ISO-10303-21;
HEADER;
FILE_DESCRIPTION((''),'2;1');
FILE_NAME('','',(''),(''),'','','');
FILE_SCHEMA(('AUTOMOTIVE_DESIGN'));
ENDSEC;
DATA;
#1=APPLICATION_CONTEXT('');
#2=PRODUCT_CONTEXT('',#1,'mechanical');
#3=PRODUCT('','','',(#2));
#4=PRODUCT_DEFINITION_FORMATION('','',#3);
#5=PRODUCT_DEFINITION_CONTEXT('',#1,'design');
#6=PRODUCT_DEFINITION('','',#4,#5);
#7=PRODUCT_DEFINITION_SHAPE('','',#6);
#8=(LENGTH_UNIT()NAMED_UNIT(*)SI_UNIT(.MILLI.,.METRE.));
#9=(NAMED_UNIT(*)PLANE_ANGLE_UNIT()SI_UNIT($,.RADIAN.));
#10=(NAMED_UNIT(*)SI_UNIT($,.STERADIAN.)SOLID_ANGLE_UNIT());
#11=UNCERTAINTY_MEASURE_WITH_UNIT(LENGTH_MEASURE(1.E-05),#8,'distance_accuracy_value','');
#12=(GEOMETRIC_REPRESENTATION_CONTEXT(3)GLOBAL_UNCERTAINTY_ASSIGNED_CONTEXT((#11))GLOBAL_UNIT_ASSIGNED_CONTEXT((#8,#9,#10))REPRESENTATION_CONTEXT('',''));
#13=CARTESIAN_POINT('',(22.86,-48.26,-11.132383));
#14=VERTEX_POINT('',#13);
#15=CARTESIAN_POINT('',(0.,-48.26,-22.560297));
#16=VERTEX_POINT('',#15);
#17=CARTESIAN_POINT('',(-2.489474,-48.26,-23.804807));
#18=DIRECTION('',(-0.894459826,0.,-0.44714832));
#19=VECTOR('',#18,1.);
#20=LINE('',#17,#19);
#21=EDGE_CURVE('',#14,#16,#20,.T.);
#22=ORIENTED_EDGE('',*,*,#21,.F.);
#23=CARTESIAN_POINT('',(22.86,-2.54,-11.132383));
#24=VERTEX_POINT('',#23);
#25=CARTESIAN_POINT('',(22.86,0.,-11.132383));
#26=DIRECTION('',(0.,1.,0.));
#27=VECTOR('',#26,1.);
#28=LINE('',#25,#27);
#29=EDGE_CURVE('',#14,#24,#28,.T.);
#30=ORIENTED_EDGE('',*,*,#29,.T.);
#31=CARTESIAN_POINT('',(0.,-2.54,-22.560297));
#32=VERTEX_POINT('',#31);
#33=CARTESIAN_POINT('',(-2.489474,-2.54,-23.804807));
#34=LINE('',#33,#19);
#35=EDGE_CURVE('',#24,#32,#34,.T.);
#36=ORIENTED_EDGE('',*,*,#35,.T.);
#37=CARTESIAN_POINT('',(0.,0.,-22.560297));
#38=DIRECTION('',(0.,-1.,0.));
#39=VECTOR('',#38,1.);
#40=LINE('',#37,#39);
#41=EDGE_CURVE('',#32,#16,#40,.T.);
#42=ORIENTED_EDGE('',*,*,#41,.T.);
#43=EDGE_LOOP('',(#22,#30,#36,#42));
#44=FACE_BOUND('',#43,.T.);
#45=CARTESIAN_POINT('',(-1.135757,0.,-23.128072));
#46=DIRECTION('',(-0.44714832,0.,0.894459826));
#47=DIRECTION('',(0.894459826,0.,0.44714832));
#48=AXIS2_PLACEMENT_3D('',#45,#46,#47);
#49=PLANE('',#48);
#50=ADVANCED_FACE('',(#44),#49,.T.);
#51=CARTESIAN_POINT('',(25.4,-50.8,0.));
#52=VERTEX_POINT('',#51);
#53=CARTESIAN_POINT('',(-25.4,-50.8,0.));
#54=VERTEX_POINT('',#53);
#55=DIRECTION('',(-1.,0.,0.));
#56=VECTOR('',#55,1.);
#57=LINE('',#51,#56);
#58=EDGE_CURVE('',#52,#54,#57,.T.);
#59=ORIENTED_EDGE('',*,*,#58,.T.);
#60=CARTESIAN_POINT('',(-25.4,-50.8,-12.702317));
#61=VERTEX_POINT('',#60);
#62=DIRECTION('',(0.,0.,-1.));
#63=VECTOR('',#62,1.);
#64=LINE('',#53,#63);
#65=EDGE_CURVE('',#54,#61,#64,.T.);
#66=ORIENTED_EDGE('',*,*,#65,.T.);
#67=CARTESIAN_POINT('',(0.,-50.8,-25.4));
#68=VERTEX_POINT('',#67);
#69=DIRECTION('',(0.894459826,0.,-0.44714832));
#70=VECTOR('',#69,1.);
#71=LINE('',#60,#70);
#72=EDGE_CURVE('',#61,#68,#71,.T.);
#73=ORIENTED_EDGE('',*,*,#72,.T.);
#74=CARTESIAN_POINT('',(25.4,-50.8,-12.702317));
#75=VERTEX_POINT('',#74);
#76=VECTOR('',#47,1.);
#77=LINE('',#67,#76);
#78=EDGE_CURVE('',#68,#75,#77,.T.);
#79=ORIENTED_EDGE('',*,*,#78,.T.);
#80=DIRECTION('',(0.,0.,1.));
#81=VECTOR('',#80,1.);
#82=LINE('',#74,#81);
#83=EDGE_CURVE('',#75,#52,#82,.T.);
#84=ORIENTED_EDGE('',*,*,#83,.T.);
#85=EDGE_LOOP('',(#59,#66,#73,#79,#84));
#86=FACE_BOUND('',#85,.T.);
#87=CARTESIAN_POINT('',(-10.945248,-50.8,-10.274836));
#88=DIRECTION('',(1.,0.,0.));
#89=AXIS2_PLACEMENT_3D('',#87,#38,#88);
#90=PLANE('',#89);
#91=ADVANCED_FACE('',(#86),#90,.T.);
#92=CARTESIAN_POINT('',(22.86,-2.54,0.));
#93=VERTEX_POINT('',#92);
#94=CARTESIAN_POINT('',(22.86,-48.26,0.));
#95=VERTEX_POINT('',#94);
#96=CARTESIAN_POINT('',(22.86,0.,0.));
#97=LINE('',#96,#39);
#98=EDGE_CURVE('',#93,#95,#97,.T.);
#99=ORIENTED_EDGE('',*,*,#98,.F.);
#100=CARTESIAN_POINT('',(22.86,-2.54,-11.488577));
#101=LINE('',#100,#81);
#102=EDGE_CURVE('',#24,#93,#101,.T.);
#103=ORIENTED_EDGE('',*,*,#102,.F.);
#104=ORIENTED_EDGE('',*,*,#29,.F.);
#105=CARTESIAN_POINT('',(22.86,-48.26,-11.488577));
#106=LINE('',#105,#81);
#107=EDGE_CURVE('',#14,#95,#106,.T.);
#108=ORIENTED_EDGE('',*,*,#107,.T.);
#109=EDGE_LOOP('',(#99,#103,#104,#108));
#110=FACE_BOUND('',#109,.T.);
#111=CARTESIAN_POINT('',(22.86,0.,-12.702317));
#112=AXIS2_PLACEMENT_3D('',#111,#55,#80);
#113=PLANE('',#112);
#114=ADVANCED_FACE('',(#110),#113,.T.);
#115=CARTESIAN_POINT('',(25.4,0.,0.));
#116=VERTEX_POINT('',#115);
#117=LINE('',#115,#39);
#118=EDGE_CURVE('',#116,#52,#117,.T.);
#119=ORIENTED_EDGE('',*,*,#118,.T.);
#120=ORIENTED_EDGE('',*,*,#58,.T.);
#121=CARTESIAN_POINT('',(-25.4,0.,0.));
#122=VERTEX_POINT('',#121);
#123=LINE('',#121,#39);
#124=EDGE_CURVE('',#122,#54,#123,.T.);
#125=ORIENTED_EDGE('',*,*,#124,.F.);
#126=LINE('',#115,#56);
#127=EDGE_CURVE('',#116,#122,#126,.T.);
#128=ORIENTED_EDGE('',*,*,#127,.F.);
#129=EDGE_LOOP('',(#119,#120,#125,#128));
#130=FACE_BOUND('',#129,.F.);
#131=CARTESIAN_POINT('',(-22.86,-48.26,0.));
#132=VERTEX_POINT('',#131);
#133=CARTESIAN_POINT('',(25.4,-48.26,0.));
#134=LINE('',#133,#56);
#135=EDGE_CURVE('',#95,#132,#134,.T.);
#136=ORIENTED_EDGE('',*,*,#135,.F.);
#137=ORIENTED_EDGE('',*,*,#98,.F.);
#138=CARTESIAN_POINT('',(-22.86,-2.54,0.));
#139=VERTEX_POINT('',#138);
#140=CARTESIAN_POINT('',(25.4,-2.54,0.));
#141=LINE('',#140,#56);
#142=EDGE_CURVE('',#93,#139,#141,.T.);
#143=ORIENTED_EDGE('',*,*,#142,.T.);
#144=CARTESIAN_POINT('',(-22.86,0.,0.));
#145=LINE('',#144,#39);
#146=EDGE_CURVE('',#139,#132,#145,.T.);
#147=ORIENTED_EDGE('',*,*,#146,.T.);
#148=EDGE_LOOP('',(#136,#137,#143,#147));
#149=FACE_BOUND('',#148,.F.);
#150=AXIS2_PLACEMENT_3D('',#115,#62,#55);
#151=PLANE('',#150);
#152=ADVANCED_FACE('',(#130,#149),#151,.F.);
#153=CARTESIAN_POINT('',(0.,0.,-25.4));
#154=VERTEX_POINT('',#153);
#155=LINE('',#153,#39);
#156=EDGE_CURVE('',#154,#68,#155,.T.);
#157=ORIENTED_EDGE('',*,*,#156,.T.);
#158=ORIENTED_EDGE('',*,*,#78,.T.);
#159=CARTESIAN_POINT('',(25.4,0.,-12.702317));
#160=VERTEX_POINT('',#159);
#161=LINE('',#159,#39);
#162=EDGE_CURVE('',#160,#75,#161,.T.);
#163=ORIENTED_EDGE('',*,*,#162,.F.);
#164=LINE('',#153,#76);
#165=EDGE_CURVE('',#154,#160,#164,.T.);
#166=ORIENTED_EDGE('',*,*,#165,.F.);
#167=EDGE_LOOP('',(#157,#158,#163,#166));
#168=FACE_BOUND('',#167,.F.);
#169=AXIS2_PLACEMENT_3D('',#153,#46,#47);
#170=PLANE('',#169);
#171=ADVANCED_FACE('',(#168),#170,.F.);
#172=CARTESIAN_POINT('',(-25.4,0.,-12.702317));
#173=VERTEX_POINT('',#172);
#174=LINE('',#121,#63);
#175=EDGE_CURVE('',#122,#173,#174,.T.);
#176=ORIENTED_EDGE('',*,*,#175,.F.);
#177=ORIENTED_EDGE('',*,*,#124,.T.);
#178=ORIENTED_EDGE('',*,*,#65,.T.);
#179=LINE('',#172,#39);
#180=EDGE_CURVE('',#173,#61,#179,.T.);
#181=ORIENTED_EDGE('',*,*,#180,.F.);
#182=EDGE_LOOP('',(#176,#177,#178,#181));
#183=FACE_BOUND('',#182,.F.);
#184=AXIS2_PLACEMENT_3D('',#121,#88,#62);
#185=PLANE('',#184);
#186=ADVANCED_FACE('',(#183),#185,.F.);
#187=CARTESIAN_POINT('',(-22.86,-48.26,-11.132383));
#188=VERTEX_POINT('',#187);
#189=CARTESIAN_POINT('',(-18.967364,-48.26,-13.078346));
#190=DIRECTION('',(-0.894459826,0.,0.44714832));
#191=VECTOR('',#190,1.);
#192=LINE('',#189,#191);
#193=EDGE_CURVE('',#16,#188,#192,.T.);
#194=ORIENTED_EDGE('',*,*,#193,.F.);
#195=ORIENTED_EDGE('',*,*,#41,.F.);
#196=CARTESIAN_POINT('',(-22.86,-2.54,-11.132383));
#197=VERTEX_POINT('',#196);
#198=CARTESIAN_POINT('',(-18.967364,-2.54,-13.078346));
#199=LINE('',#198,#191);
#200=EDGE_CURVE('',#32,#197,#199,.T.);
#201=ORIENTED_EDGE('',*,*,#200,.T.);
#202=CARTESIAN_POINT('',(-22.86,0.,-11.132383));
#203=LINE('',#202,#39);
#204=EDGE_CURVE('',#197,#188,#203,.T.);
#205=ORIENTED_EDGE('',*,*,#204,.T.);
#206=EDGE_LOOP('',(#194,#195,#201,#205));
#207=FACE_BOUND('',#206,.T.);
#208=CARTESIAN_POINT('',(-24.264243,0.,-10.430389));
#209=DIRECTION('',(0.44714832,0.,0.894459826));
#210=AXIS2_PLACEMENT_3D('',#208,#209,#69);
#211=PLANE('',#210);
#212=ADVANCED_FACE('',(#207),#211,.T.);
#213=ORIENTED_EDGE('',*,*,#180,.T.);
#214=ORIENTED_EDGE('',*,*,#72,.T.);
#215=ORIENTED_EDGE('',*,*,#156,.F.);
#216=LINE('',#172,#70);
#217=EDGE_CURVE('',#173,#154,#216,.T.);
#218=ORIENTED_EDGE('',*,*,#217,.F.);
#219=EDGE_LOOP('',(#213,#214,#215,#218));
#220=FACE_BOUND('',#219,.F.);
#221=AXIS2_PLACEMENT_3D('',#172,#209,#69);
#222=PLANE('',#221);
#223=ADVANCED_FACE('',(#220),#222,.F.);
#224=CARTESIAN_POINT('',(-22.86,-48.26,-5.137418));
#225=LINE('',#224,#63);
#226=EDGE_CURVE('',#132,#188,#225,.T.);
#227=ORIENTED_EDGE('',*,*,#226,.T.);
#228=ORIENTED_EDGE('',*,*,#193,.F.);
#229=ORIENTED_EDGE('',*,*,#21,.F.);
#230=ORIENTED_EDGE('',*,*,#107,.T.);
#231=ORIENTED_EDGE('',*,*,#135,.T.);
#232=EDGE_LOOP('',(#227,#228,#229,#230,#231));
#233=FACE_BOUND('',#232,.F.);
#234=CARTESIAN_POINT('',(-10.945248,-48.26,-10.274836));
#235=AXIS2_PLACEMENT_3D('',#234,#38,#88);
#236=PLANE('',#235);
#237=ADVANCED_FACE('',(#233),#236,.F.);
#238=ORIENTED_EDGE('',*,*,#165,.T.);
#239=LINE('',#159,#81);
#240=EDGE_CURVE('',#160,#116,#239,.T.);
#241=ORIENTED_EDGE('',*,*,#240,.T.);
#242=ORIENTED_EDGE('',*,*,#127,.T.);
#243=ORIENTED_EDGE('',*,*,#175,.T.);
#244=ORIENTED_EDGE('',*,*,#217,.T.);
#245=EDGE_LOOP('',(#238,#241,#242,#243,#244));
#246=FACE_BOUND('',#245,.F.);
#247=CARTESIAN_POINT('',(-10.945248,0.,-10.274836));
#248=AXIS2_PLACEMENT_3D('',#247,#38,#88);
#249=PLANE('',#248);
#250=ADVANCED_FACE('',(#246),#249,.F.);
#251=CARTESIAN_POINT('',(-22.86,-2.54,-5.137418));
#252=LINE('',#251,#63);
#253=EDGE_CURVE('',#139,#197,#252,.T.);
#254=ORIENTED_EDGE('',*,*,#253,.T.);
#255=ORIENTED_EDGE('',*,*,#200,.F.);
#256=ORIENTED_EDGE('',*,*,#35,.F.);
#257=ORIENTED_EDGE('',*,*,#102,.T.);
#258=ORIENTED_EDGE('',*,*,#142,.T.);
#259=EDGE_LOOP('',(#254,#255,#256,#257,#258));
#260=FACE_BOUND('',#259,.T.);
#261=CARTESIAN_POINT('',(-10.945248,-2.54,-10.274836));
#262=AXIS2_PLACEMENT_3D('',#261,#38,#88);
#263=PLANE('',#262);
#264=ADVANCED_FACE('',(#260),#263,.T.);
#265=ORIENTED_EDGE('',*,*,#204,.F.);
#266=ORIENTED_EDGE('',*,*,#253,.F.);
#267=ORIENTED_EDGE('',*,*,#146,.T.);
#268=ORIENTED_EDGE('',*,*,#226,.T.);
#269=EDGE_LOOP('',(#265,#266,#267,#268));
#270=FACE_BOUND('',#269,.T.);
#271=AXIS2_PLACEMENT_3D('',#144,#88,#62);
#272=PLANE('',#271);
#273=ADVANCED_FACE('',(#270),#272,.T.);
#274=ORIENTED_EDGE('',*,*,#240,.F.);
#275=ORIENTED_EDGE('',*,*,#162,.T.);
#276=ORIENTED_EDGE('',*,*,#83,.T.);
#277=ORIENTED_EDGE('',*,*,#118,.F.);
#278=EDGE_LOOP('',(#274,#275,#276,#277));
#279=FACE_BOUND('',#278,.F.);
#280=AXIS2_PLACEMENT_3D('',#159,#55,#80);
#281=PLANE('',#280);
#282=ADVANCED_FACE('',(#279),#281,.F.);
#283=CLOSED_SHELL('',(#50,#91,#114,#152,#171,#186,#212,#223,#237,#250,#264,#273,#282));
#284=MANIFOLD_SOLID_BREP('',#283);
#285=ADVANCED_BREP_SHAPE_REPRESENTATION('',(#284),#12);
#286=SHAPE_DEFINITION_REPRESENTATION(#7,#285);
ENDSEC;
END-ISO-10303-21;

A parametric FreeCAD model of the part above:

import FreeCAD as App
import Part
import Sketcher
from FreeCAD import Vector
Q = App.Units.Quantity


def faces_at(feature, points):
    """Names of the faces that lie closest to the given points."""
    faces = feature.Shape.Faces
    near = lambda p: min(range(len(faces)), key=lambda i: faces[i].distToShape(Part.Vertex(*p))[0])
    return sorted({f"Face{near(p) + 1}" for p in points})

doc = App.newDocument("Part")
params = doc.addObject("Spreadsheet::Sheet", "Params")
for row, (alias, value) in enumerate([
    ("sketch1_width", "2 in"),
    ("pad1_length", "2 in"),
    ("thickness_wall", "0.1 in"),
], start=1):
    params.set(f"A{row}", alias)
    params.set(f"B{row}", "=" + value)
    params.setAlias(f"B{row}", alias)

body = doc.addObject("PartDesign::Body", "Body")

sketch1 = body.newObject("Sketcher::SketchObject", "Sketch")
sketch1.AttachmentSupport = (doc.getObject("XZ_Plane"), [""])
sketch1.MapMode = "FlatFace"
sketch1.addGeometry(Part.LineSegment(Vector(-25, 0, 0), Vector(-25, -13, 0)), False)
sketch1.addGeometry(Part.LineSegment(Vector(-25, -13, 0), Vector(0, -25, 0)), False)
sketch1.addGeometry(Part.LineSegment(Vector(0, -25, 0), Vector(25, -13, 0)), False)
sketch1.addGeometry(Part.LineSegment(Vector(25, -13, 0), Vector(25, 0, 0)), False)
sketch1.addGeometry(Part.LineSegment(Vector(25, 0, 0), Vector(-25, 0, 0)), False)
sketch1.addConstraint(Sketcher.Constraint("Coincident", 0, 2, 1, 1))
sketch1.addConstraint(Sketcher.Constraint("Coincident", 1, 2, 2, 1))
sketch1.addConstraint(Sketcher.Constraint("Coincident", 2, 2, 3, 1))
sketch1.addConstraint(Sketcher.Constraint("Coincident", 3, 2, 4, 1))
sketch1.addConstraint(Sketcher.Constraint("Coincident", 4, 2, 0, 1))
sketch1.addConstraint(Sketcher.Constraint("Vertical", 0))
sketch1.addConstraint(Sketcher.Constraint("Vertical", 3))
sketch1.addConstraint(Sketcher.Constraint("Horizontal", 4))
sketch1.addConstraint(Sketcher.Constraint("Symmetric", 3, 2, 4, 2, -1, 1))
sketch1.addConstraint(Sketcher.Constraint("PointOnObject", 1, 2, -2))
sketch1.addConstraint(Sketcher.Constraint("Horizontal", 0, 2, 2, 2))
sketch1.addConstraint(Sketcher.Constraint("DistanceX", 4, 2, 4, 1, Q("2 in")))
sketch1.addConstraint(Sketcher.Constraint("DistanceY", 1, 2, -1, 1, Q("1 in")))
sketch1.addConstraint(Sketcher.Constraint("DistanceY", 0, 2, 0, 1, 12.702317))
sketch1.setExpression("Constraints[11]", "Params.sketch1_width")
pad1 = body.newObject("PartDesign::Pad", "Pad")
pad1.Profile = sketch1
pad1.setExpression("Length", "Params.pad1_length")
doc.recompute()

thickness = body.newObject("PartDesign::Thickness", "Thickness")
thickness.Base = (pad1, faces_at(pad1, [(0, -25.4, 0)]))
thickness.setExpression("Value", "Params.thickness_wall")
thickness.Reversed = True
thickness.Join = "Arc"

doc.recompute()
